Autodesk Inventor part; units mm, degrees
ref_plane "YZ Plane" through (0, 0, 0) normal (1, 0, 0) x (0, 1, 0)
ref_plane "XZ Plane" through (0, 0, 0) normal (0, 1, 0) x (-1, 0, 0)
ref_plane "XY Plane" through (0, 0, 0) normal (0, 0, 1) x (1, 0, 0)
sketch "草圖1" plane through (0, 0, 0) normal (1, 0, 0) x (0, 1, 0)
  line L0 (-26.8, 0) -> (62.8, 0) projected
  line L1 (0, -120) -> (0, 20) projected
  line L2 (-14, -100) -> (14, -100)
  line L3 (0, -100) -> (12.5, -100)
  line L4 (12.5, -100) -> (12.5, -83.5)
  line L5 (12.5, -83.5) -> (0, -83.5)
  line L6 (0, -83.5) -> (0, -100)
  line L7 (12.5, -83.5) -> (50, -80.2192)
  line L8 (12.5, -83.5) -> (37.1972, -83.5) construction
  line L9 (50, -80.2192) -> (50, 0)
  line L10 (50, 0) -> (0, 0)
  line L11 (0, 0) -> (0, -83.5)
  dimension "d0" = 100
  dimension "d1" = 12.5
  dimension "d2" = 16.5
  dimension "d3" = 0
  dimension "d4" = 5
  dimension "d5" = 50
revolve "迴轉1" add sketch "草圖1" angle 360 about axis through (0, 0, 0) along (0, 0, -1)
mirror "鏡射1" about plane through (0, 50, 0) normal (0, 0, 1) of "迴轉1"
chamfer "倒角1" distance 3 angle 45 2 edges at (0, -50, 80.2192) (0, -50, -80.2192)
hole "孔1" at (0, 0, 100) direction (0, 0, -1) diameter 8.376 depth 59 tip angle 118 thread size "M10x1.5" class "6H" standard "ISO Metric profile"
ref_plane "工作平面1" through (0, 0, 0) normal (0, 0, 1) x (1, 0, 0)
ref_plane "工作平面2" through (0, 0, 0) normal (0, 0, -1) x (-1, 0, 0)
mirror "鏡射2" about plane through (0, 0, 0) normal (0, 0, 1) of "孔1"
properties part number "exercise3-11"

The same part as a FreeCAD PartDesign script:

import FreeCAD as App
import Part
import Sketcher

V = App.Vector
Q = App.Units.Quantity


def edges_at(feature, points):
    """Names of the edges that pass closest to the given points."""
    edges = feature.Shape.Edges
    near = lambda p: min(range(len(edges)), key=lambda i: edges[i].distToShape(Part.Vertex(*p))[0])
    return sorted({f"Edge{near(p) + 1}" for p in points})

doc = App.newDocument("Part")
params = doc.addObject("Spreadsheet::Sheet", "Params")
for row, (alias, value) in enumerate([
    ("sketch1_width", "50 mm"),
    ("sketch1_height", "100 mm"),
    ("sketch1_width2", "12.5 mm"),
    ("sketch1_height2", "16.5 mm"),
    ("revolution_angle", "360 deg"),
    ("chamfer_size", "3 mm"),
    ("hole_diameter", "8.376 mm"),
    ("hole_depth", "59 mm"),
], start=1):
    params.set(f"A{row}", alias)
    params.set(f"B{row}", "=" + value)
    params.setAlias(f"B{row}", alias)

body = doc.addObject("PartDesign::Body", "Body")

sketch1 = body.newObject("Sketcher::SketchObject", "Sketch")
sketch1.AttachmentSupport = (doc.getObject("YZ_Plane"), [""])
sketch1.MapMode = "FlatFace"
sketch1.addGeometry(Part.LineSegment(V(50, 0, 0), V(0, 0, 0)), False)
sketch1.addGeometry(Part.LineSegment(V(0, 0, 0), V(0, -100, 0)), False)
sketch1.addGeometry(Part.LineSegment(V(0, -100, 0), V(12, -100, 0)), False)
sketch1.addGeometry(Part.LineSegment(V(12, -100, 0), V(12, -84, 0)), False)
sketch1.addGeometry(Part.LineSegment(V(12, -84, 0), V(50, -80, 0)), False)
sketch1.addGeometry(Part.LineSegment(V(50, -80, 0), V(50, 0, 0)), False)
sketch1.addConstraint(Sketcher.Constraint("Coincident", 0, 2, 1, 1))
sketch1.addConstraint(Sketcher.Constraint("Coincident", 1, 2, 2, 1))
sketch1.addConstraint(Sketcher.Constraint("Coincident", 2, 2, 3, 1))
sketch1.addConstraint(Sketcher.Constraint("Coincident", 3, 2, 4, 1))
sketch1.addConstraint(Sketcher.Constraint("Coincident", 4, 2, 5, 1))
sketch1.addConstraint(Sketcher.Constraint("Coincident", 5, 2, 0, 1))
sketch1.addConstraint(Sketcher.Constraint("Horizontal", 0))
sketch1.addConstraint(Sketcher.Constraint("Vertical", 1))
sketch1.addConstraint(Sketcher.Constraint("Horizontal", 2))
sketch1.addConstraint(Sketcher.Constraint("Vertical", 3))
sketch1.addConstraint(Sketcher.Constraint("Vertical", 5))
sketch1.addConstraint(Sketcher.Constraint("Coincident", 0, 2, -1, 1))
sketch1.addConstraint(Sketcher.Constraint("DistanceX", 0, 2, 0, 1, Q("50 mm")))
sketch1.addConstraint(Sketcher.Constraint("DistanceY", 1, 2, 1, 1, Q("100 mm")))
sketch1.addConstraint(Sketcher.Constraint("Angle", 4, Q("5 deg")))
sketch1.addConstraint(Sketcher.Constraint("DistanceX", 2, 1, 2, 2, Q("12.5 mm")))
sketch1.addConstraint(Sketcher.Constraint("DistanceY", 3, 1, 3, 2, Q("16.5 mm")))
sketch1.setExpression("Constraints[12]", "Params.sketch1_width")
sketch1.setExpression("Constraints[13]", "Params.sketch1_height")
sketch1.setExpression("Constraints[15]", "Params.sketch1_width2")
sketch1.setExpression("Constraints[16]", "Params.sketch1_height2")
revolution = body.newObject("PartDesign::Revolution", "Revolution")
revolution.Profile = sketch1
revolution.ReferenceAxis = (sketch1, ["V_Axis"])
revolution.setExpression("Angle", "Params.revolution_angle")
doc.recompute()

mirrored = body.newObject("PartDesign::Mirrored", "Mirrored")
mirrored.Originals = [revolution]
mirrored.MirrorPlane = (doc.getObject("XY_Plane"), [""])
body.Tip = mirrored
doc.recompute()

chamfer = body.newObject("PartDesign::Chamfer", "Chamfer")
chamfer.Base = (mirrored, edges_at(mirrored, [(0, -50, 80.219), (0, -50, -80.219)]))
chamfer.setExpression("Size", "Params.chamfer_size")

sketch2 = body.newObject("Sketcher::SketchObject", "Sketch001")
sketch2.AttachmentSupport = (doc.getObject("XY_Plane"), [""])
sketch2.MapMode = "FlatFace"
sketch2.AttachmentOffset = App.Placement(V(0, 0, 100), App.Rotation())
sketch2.addGeometry(Part.Circle(V(0, 0, 0), V(0, 0, 1), 4.2), False)
sketch2.addConstraint(Sketcher.Constraint("Coincident", 0, 3, -1, 1))
sketch2.addConstraint(Sketcher.Constraint("Diameter", 0, Q("8.376 mm")))
doc.recompute()
hole = body.newObject("PartDesign::Hole", "Hole")
hole.Profile = sketch2
hole.ThreadType = "None"
hole.setExpression("Diameter", "Params.hole_diameter")
hole.DepthType = "Dimension"
hole.setExpression("Depth", "Params.hole_depth")
hole.DrillPoint = "Angled"
hole.DrillPointAngle = 118
doc.recompute()

mirrored2 = body.newObject("PartDesign::Mirrored", "Mirrored001")
mirrored2.Originals = [hole]
mirrored2.MirrorPlane = (doc.getObject("XY_Plane"), [""])
body.Tip = mirrored2

doc.recompute()
